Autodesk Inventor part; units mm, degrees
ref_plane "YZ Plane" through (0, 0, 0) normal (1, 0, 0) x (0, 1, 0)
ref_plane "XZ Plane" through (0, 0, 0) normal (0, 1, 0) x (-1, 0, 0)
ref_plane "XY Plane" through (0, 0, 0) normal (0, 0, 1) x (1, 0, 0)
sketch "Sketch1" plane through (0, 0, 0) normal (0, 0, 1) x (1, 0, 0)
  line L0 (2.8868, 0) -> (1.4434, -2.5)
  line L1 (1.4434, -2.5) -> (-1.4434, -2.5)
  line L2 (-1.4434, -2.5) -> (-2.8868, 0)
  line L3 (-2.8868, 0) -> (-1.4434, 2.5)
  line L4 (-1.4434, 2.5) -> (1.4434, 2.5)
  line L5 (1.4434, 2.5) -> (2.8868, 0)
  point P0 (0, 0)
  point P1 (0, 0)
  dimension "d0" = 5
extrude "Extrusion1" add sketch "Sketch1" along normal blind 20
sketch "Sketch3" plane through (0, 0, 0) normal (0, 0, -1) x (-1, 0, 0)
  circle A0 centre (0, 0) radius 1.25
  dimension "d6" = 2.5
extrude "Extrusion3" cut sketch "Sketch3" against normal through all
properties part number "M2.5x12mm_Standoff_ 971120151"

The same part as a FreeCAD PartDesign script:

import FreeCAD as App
import Part
import Sketcher

V = App.Vector
Q = App.Units.Quantity


def add_polygon(sketch, points):
    """Adds a closed chain of lines whose ends are joined by coincident constraints."""
    first, n = sketch.GeometryCount, len(points)
    for a, b in zip(points, points[1:] + points[:1]):
        sketch.addGeometry(Part.LineSegment(App.Vector(*a, 0), App.Vector(*b, 0)), False)
    for i in range(n):
        sketch.addConstraint(Sketcher.Constraint("Coincident", first + i, 2, first + (i + 1) % n, 1))

doc = App.newDocument("Part")
body = doc.addObject("PartDesign::Body", "Body")

# Sketch on XY plane
sketch1 = body.newObject("Sketcher::SketchObject", "Sketch")
sketch1.AttachmentSupport = (doc.getObject("XY_Plane"), [""])
sketch1.MapMode = "FlatFace"
add_polygon(sketch1, [(1.4434, -2.5), (2.8868, 0), (1.4434, 2.5), (-1.4434, 2.5), (-2.8868, 0), (-1.4434, -2.5)])  # lines 0-5
sketch1.addConstraint([
    Sketcher.Constraint("Horizontal", 2),
    Sketcher.Constraint("Horizontal", 5),
    Sketcher.Constraint("Symmetric", 0, 2, 3, 2, -1, 1),
    Sketcher.Constraint("Symmetric", 1, 2, 4, 2, -1, 1),
    Sketcher.Constraint("PointOnObject", 0, 2, -1),
    Sketcher.Constraint("Parallel", 0, 3),
    Sketcher.Constraint("Vertical", 2, 2, 4, 2),
    Sketcher.Constraint("DistanceY", 4, 2, 2, 2, 5.0),
    Sketcher.Constraint("Angle", 0, Q("59.9996 deg")),
    Sketcher.Constraint("DistanceX", 2, 2, 2, 1, 2.8868),
])
pad1 = body.newObject("PartDesign::Pad", "Pad")
pad1.Profile = sketch1
pad1.Length = 20

# Sketch on XY plane
sketch2 = body.newObject("Sketcher::SketchObject", "Sketch001")
sketch2.AttachmentSupport = (doc.getObject("XY_Plane"), [""])
sketch2.MapMode = "FlatFace"
sketch2.addGeometry(Part.Circle(V(0, 0, 0), V(0, 0, 1), 1.25), False)
sketch2.addConstraint([
    Sketcher.Constraint("Coincident", 0, 3, -1, 1),
    Sketcher.Constraint("Diameter", 0, 2.5),
])
pocket1 = body.newObject("PartDesign::Pocket", "Pocket")
pocket1.Profile = sketch2
pocket1.Type = "ThroughAll"
pocket1.Reversed = True

doc.recompute()
